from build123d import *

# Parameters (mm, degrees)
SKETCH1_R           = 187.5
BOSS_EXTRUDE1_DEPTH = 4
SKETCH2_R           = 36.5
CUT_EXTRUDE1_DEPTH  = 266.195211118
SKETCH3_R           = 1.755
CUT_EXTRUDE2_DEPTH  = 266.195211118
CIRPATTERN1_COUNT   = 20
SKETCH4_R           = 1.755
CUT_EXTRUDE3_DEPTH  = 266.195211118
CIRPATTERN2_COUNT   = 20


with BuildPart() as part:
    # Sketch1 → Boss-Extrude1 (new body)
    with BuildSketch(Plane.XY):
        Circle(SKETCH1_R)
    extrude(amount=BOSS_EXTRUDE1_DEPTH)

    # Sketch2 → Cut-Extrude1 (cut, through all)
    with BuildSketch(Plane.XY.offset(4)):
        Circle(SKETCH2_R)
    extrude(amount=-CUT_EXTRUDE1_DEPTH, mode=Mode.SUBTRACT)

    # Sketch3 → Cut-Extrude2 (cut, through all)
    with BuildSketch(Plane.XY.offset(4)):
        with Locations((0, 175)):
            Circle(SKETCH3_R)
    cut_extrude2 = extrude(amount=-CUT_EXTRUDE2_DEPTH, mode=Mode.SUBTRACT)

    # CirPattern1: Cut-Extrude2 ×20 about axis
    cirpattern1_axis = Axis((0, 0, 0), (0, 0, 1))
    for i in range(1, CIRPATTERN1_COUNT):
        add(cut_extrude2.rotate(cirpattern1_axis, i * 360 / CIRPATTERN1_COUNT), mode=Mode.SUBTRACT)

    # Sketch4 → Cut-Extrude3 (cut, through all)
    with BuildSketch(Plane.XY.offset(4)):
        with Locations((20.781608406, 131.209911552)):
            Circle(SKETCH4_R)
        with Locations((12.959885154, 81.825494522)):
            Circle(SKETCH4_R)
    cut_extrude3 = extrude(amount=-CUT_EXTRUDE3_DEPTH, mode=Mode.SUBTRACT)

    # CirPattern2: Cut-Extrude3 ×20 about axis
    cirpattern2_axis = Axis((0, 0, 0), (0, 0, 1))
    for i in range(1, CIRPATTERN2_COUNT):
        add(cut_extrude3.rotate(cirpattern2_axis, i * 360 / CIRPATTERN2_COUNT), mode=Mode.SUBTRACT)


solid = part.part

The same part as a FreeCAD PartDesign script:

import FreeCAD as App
import Part
import Sketcher
Q = App.Units.Quantity

doc = App.newDocument("Part")
params = doc.addObject("Spreadsheet::Sheet", "Params")
for row, (alias, value) in enumerate([
    ("sketch1_diameter", "375 mm"),
    ("pad1_length", "4 mm"),
    ("sketch2_diameter", "73 mm"),
    ("sketch3_diameter", "3.51 mm"),
    ("sketch4_diameter", "3.51 mm"),
], start=1):
    params.set(f"A{row}", alias)
    params.set(f"B{row}", "=" + value)
    params.setAlias(f"B{row}", alias)

body = doc.addObject("PartDesign::Body", "Body")

# Sketch on XY plane
sketch1 = doc.addObject("Sketcher::SketchObject", "Sketch")
body.addObject(sketch1)
sketch1.AttachmentSupport = (doc.XY_Plane, [""])
sketch1.MapMode = "FlatFace"
sketch1.addGeometry(Part.Circle(App.Vector(0, 0, 0), App.Vector(0, 0, 1), 187.5), False)
sketch1.addConstraint([
    Sketcher.Constraint("Coincident", 0, 3, -1, 1),
    Sketcher.Constraint("Diameter", 0, Q("375 mm")),
])
sketch1.setExpression("Constraints[1]", "Params.sketch1_diameter")
pad1 = doc.addObject("PartDesign::Pad", "Pad")
body.addObject(pad1)
pad1.Profile = sketch1
pad1.setExpression("Length", "Params.pad1_length")

# Sketch on XY plane
sketch2 = doc.addObject("Sketcher::SketchObject", "Sketch001")
body.addObject(sketch2)
sketch2.AttachmentSupport = (doc.XY_Plane, [""])
sketch2.MapMode = "FlatFace"
sketch2.AttachmentOffset = App.Placement(App.Vector(0, 0, 4), App.Rotation())
sketch2.addGeometry(Part.Circle(App.Vector(0, 0, 0), App.Vector(0, 0, 1), 36.5), False)
sketch2.addConstraint([
    Sketcher.Constraint("Coincident", 0, 3, -1, 1),
    Sketcher.Constraint("Diameter", 0, Q("73 mm")),
])
sketch2.setExpression("Constraints[1]", "Params.sketch2_diameter")
pocket1 = doc.addObject("PartDesign::Pocket", "Pocket")
body.addObject(pocket1)
pocket1.Profile = sketch2
pocket1.Type = "ThroughAll"

# Sketch on XY plane
sketch3 = doc.addObject("Sketcher::SketchObject", "Sketch002")
body.addObject(sketch3)
sketch3.AttachmentSupport = (doc.XY_Plane, [""])
sketch3.MapMode = "FlatFace"
sketch3.AttachmentOffset = App.Placement(App.Vector(0, 0, 4), App.Rotation())
sketch3.addGeometry(Part.Circle(App.Vector(0, 175, 0), App.Vector(0, 0, 1), 1.755), False)
sketch3.addConstraint([
    Sketcher.Constraint("PointOnObject", 0, 3, -2),
    Sketcher.Constraint("Diameter", 0, Q("3.51 mm")),
    Sketcher.Constraint("DistanceY", -1, 1, 0, 3, Q("175 mm")),
])
sketch3.setExpression("Constraints[1]", "Params.sketch3_diameter")
pocket2 = doc.addObject("PartDesign::Pocket", "Pocket001")
body.addObject(pocket2)
pocket2.Profile = sketch3
pocket2.Type = "ThroughAll"
doc.recompute()

polarpattern = doc.addObject("PartDesign::PolarPattern", "PolarPattern")
body.addObject(polarpattern)
polarpattern.Originals = [pocket2]
polarpattern.Axis = (doc.Z_Axis, [""])
polarpattern.Angle = 360
polarpattern.Occurrences = 20
body.Tip = polarpattern

# Sketch on XY plane
sketch4 = doc.addObject("Sketcher::SketchObject", "Sketch003")
body.addObject(sketch4)
sketch4.AttachmentSupport = (doc.XY_Plane, [""])
sketch4.MapMode = "FlatFace"
sketch4.AttachmentOffset = App.Placement(App.Vector(0, 0, 4), App.Rotation())
sketch4.addGeometry([
    Part.Circle(App.Vector(20.781608, 131.209912, 0), App.Vector(0, 0, 1), 1.755),
    Part.Circle(App.Vector(12.959885, 81.825495, 0), App.Vector(0, 0, 1), 1.755),
], False)
sketch4.addConstraint([
    Sketcher.Constraint("Equal", 0, 1),
    Sketcher.Constraint("Diameter", 0, Q("3.51 mm")),
    Sketcher.Constraint("DistanceX", -1, 1, 0, 3, Q("20.781608 mm")),
    Sketcher.Constraint("DistanceY", -1, 1, 0, 3, Q("131.209912 mm")),
    Sketcher.Constraint("DistanceX", -1, 1, 1, 3, Q("12.959885 mm")),
    Sketcher.Constraint("DistanceY", -1, 1, 1, 3, Q("81.825495 mm")),
])
sketch4.setExpression("Constraints[1]", "Params.sketch4_diameter")
pocket3 = doc.addObject("PartDesign::Pocket", "Pocket002")
body.addObject(pocket3)
pocket3.Profile = sketch4
pocket3.Type = "ThroughAll"
doc.recompute()

polarpattern2 = doc.addObject("PartDesign::PolarPattern", "PolarPattern001")
body.addObject(polarpattern2)
polarpattern2.Originals = [pocket3]
polarpattern2.Axis = (doc.Z_Axis, [""])
polarpattern2.Angle = 360
polarpattern2.Occurrences = 20
body.Tip = polarpattern2

doc.recompute()
